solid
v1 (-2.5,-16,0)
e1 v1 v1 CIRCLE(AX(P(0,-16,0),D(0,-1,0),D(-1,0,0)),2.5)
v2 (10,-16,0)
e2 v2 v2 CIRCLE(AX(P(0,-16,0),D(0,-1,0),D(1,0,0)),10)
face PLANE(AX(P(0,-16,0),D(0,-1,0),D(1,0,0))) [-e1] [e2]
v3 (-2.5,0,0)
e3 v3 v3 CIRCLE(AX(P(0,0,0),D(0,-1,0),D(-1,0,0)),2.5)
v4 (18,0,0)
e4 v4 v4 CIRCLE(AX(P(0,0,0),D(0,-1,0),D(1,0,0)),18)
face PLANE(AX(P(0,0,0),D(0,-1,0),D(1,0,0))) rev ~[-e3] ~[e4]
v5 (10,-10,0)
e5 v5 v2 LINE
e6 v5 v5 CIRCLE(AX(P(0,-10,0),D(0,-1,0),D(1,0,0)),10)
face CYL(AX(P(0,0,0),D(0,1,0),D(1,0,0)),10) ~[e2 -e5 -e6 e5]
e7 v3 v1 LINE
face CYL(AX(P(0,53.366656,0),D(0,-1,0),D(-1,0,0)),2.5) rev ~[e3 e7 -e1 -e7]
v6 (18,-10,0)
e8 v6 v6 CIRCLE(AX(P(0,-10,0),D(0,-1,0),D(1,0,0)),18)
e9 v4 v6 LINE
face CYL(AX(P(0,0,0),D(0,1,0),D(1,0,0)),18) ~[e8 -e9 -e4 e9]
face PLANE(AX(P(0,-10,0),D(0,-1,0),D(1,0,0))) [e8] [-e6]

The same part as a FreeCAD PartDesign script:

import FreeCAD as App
import Part
import Sketcher

doc = App.newDocument("Part")
params = doc.addObject("Spreadsheet::Sheet", "Params")
for row, (alias, value) in enumerate([
    ("sketch1_diameter", "36 mm"),
    ("sketch1_diameter2", "20 mm"),
    ("pad1_length", "10 mm"),
    ("sketch2_diameter", "20 mm"),
    ("pad2_length", "16 mm"),
    ("sketch3_diameter", "5 mm"),
    ("hole_diameter", "5 mm"),
], start=1):
    params.set(f"A{row}", alias)
    params.set(f"B{row}", "=" + value)
    params.setAlias(f"B{row}", alias)

body = doc.addObject("PartDesign::Body", "Body")

# Sketch on XZ plane
sketch1 = body.newObject("Sketcher::SketchObject", "Sketch")
sketch1.AttachmentSupport = (doc.getObject("XZ_Plane"), [""])
sketch1.MapMode = "FlatFace"
sketch1.addGeometry([
    Part.Circle(App.Vector(0, 0, 0), App.Vector(0, 0, 1), 18),
    Part.Circle(App.Vector(0, 0, 0), App.Vector(0, 0, 1), 10),
], False)
sketch1.addConstraint([
    Sketcher.Constraint("Coincident", 0, 3, -1, 1),
    Sketcher.Constraint("Coincident", 1, 3, -1, 1),
    Sketcher.Constraint("Diameter", 0, 36.0),
    Sketcher.Constraint("Diameter", 1, 20.0),
])
sketch1.setExpression("Constraints[2]", "Params.sketch1_diameter")
sketch1.setExpression("Constraints[3]", "Params.sketch1_diameter2")
pad1 = body.newObject("PartDesign::Pad", "Pad")
pad1.Profile = sketch1
pad1.setExpression("Length", "Params.pad1_length")

# Sketch on XZ plane
sketch2 = body.newObject("Sketcher::SketchObject", "Sketch001")
sketch2.AttachmentSupport = (doc.getObject("XZ_Plane"), [""])
sketch2.MapMode = "FlatFace"
sketch2.addGeometry(Part.Circle(App.Vector(0, 0, 0), App.Vector(0, 0, 1), 10), False)
sketch2.addConstraint([
    Sketcher.Constraint("Coincident", 0, 3, -1, 1),
    Sketcher.Constraint("Diameter", 0, 20.0),
])
sketch2.setExpression("Constraints[1]", "Params.sketch2_diameter")
pad2 = body.newObject("PartDesign::Pad", "Pad001")
pad2.Profile = sketch2
pad2.setExpression("Length", "Params.pad2_length")

# Sketch on XZ plane
sketch3 = body.newObject("Sketcher::SketchObject", "Sketch002")
sketch3.AttachmentSupport = (doc.getObject("XZ_Plane"), [""])
sketch3.MapMode = "FlatFace"
sketch3.addGeometry(Part.Circle(App.Vector(0, 0, 0), App.Vector(0, 0, 1), 2.5), False)
sketch3.addConstraint([
    Sketcher.Constraint("Coincident", 0, 3, -1, 1),
    Sketcher.Constraint("Diameter", 0, 5.0),
])
sketch3.setExpression("Constraints[1]", "Params.sketch3_diameter")
doc.recompute()
hole = body.newObject("PartDesign::Hole", "Hole")
hole.Profile = sketch3
hole.ThreadType = "None"
hole.setExpression("Diameter", "Params.hole_diameter")
hole.DepthType = "ThroughAll"
hole.Reversed = True

doc.recompute()
